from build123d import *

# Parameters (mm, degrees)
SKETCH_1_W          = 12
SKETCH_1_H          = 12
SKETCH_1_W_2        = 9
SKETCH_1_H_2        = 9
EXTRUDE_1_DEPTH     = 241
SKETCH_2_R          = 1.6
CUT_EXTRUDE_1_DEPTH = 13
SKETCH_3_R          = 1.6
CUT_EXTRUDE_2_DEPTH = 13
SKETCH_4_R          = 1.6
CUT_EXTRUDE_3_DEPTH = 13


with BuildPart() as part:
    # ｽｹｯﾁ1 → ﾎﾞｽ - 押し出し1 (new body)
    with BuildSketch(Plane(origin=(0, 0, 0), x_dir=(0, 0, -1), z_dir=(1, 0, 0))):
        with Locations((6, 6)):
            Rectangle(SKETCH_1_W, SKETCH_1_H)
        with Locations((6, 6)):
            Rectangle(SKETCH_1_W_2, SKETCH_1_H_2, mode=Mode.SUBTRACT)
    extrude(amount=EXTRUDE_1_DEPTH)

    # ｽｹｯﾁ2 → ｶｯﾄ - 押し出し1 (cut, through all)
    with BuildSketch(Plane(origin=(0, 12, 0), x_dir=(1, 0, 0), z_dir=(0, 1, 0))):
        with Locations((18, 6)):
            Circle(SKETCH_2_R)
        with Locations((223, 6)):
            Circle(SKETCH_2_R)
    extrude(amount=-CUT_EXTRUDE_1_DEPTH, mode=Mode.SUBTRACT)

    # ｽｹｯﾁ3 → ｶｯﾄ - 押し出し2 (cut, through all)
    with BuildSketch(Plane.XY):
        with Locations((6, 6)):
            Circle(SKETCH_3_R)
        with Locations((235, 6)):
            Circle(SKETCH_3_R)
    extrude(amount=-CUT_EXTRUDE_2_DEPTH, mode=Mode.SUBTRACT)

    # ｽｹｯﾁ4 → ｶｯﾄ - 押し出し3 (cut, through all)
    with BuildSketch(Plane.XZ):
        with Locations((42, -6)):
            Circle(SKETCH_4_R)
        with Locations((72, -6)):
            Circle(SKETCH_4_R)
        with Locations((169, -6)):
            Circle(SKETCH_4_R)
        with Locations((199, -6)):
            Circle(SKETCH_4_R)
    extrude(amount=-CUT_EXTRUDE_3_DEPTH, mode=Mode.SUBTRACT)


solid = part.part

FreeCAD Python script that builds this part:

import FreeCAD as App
import Part
import Sketcher

doc = App.newDocument("Part")
body = doc.addObject("PartDesign::Body", "Body")

sketch1 = body.newObject("Sketcher::SketchObject", "Sketch")
sketch1.AttachmentSupport = (doc.getObject("YZ_Plane"), [""])
sketch1.MapMode = "FlatFace"
sketch1.addGeometry(Part.LineSegment(App.Vector(12, 0, 0), App.Vector(0, 0, 0)), False)
sketch1.addGeometry(Part.LineSegment(App.Vector(0, 0, 0), App.Vector(0, -12, 0)), False)
sketch1.addGeometry(Part.LineSegment(App.Vector(0, -12, 0), App.Vector(12, -12, 0)), False)
sketch1.addGeometry(Part.LineSegment(App.Vector(12, -12, 0), App.Vector(12, 0, 0)), False)
sketch1.addGeometry(Part.LineSegment(App.Vector(2, -10, 0), App.Vector(2, -2, 0)), False)
sketch1.addGeometry(Part.LineSegment(App.Vector(2, -2, 0), App.Vector(10, -2, 0)), False)
sketch1.addGeometry(Part.LineSegment(App.Vector(10, -2, 0), App.Vector(10, -10, 0)), False)
sketch1.addGeometry(Part.LineSegment(App.Vector(10, -10, 0), App.Vector(2, -10, 0)), False)
sketch1.addConstraint(Sketcher.Constraint("Coincident", 0, 2, 1, 1))
sketch1.addConstraint(Sketcher.Constraint("Coincident", 1, 2, 2, 1))
sketch1.addConstraint(Sketcher.Constraint("Coincident", 2, 2, 3, 1))
sketch1.addConstraint(Sketcher.Constraint("Coincident", 3, 2, 0, 1))
sketch1.addConstraint(Sketcher.Constraint("Coincident", 4, 2, 5, 1))
sketch1.addConstraint(Sketcher.Constraint("Coincident", 5, 2, 6, 1))
sketch1.addConstraint(Sketcher.Constraint("Coincident", 6, 2, 7, 1))
sketch1.addConstraint(Sketcher.Constraint("Coincident", 7, 2, 4, 1))
sketch1.addConstraint(Sketcher.Constraint("Horizontal", 0))
sketch1.addConstraint(Sketcher.Constraint("Vertical", 1))
sketch1.addConstraint(Sketcher.Constraint("Horizontal", 2))
sketch1.addConstraint(Sketcher.Constraint("Vertical", 3))
sketch1.addConstraint(Sketcher.Constraint("Vertical", 4))
sketch1.addConstraint(Sketcher.Constraint("Horizontal", 5))
sketch1.addConstraint(Sketcher.Constraint("Vertical", 6))
sketch1.addConstraint(Sketcher.Constraint("Horizontal", 7))
sketch1.addConstraint(Sketcher.Constraint("Coincident", 0, 2, -1, 1))
sketch1.addConstraint(Sketcher.Constraint("Equal", 2, 1))
sketch1.addConstraint(Sketcher.Constraint("Equal", 7, 4))
sketch1.addConstraint(Sketcher.Constraint("DistanceX", 0, 2, 0, 1, 12.0))
sketch1.addConstraint(Sketcher.Constraint("DistanceX", 5, 1, 5, 2, 9.0))
sketch1.addConstraint(Sketcher.Constraint("DistanceX", -1, 1, 4, 2, 1.5))
sketch1.addConstraint(Sketcher.Constraint("DistanceY", 4, 2, -1, 1, 1.5))
pad1 = body.newObject("PartDesign::Pad", "Pad")
pad1.Profile = sketch1
pad1.Length = 241

sketch2 = body.newObject("Sketcher::SketchObject", "Sketch001")
sketch2.AttachmentSupport = (doc.getObject("XZ_Plane"), [""])
sketch2.MapMode = "FlatFace"
sketch2.AttachmentOffset = App.Placement(App.Vector(0, 0, -12), App.Rotation())
sketch2.addGeometry(Part.Circle(App.Vector(18, -6, 0), App.Vector(0, 0, 1), 1.6), False)
sketch2.addGeometry(Part.Circle(App.Vector(223, -6, 0), App.Vector(0, 0, 1), 1.6), False)
sketch2.addConstraint(Sketcher.Constraint("Equal", 0, 1))
sketch2.addConstraint(Sketcher.Constraint("Horizontal", 0, 3, 1, 3))
sketch2.addConstraint(Sketcher.Constraint("Diameter", 0, 3.2))
sketch2.addConstraint(Sketcher.Constraint("DistanceX", -1, 1, 0, 3, 18.0))
sketch2.addConstraint(Sketcher.Constraint("DistanceY", 0, 3, -1, 1, 6.0))
sketch2.addConstraint(Sketcher.Constraint("DistanceX", -1, 1, 1, 3, 223.0))
pocket1 = body.newObject("PartDesign::Pocket", "Pocket")
pocket1.Profile = sketch2
pocket1.Type = "ThroughAll"
pocket1.Reversed = True

sketch3 = body.newObject("Sketcher::SketchObject", "Sketch002")
sketch3.AttachmentSupport = (doc.getObject("XY_Plane"), [""])
sketch3.MapMode = "FlatFace"
sketch3.addGeometry(Part.Circle(App.Vector(6, 6, 0), App.Vector(0, 0, 1), 1.6), False)
sketch3.addGeometry(Part.Circle(App.Vector(235, 6, 0), App.Vector(0, 0, 1), 1.6), False)
sketch3.addConstraint(Sketcher.Constraint("Equal", 0, 1))
sketch3.addConstraint(Sketcher.Constraint("Horizontal", 0, 3, 1, 3))
sketch3.addConstraint(Sketcher.Constraint("Diameter", 0, 3.2))
sketch3.addConstraint(Sketcher.Constraint("DistanceX", -1, 1, 0, 3, 6.0))
sketch3.addConstraint(Sketcher.Constraint("DistanceY", -1, 1, 0, 3, 6.0))
sketch3.addConstraint(Sketcher.Constraint("DistanceX", -1, 1, 1, 3, 235.0))
pocket2 = body.newObject("PartDesign::Pocket", "Pocket001")
pocket2.Profile = sketch3
pocket2.Type = "ThroughAll"

sketch4 = body.newObject("Sketcher::SketchObject", "Sketch003")
sketch4.AttachmentSupport = (doc.getObject("XZ_Plane"), [""])
sketch4.MapMode = "FlatFace"
sketch4.addGeometry(Part.Circle(App.Vector(42, -6, 0), App.Vector(0, 0, 1), 1.6), False)
sketch4.addGeometry(Part.Circle(App.Vector(72, -6, 0), App.Vector(0, 0, 1), 1.6), False)
sketch4.addGeometry(Part.Circle(App.Vector(169, -6, 0), App.Vector(0, 0, 1), 1.6), False)
sketch4.addGeometry(Part.Circle(App.Vector(199, -6, 0), App.Vector(0, 0, 1), 1.6), False)
sketch4.addConstraint(Sketcher.Constraint("Equal", 0, 1))
sketch4.addConstraint(Sketcher.Constraint("Equal", 1, 2))
sketch4.addConstraint(Sketcher.Constraint("Equal", 2, 3))
sketch4.addConstraint(Sketcher.Constraint("Horizontal", 0, 3, 1, 3))
sketch4.addConstraint(Sketcher.Constraint("Horizontal", 1, 3, 2, 3))
sketch4.addConstraint(Sketcher.Constraint("Horizontal", 2, 3, 3, 3))
sketch4.addConstraint(Sketcher.Constraint("Diameter", 0, 3.2))
sketch4.addConstraint(Sketcher.Constraint("DistanceX", -1, 1, 0, 3, 42.0))
sketch4.addConstraint(Sketcher.Constraint("DistanceY", 0, 3, -1, 1, 6.0))
sketch4.addConstraint(Sketcher.Constraint("DistanceX", -1, 1, 1, 3, 72.0))
sketch4.addConstraint(Sketcher.Constraint("DistanceX", -1, 1, 2, 3, 169.0))
sketch4.addConstraint(Sketcher.Constraint("DistanceX", -1, 1, 3, 3, 199.0))
pocket3 = body.newObject("PartDesign::Pocket", "Pocket002")
pocket3.Profile = sketch4
pocket3.Type = "ThroughAll"

doc.recompute()
